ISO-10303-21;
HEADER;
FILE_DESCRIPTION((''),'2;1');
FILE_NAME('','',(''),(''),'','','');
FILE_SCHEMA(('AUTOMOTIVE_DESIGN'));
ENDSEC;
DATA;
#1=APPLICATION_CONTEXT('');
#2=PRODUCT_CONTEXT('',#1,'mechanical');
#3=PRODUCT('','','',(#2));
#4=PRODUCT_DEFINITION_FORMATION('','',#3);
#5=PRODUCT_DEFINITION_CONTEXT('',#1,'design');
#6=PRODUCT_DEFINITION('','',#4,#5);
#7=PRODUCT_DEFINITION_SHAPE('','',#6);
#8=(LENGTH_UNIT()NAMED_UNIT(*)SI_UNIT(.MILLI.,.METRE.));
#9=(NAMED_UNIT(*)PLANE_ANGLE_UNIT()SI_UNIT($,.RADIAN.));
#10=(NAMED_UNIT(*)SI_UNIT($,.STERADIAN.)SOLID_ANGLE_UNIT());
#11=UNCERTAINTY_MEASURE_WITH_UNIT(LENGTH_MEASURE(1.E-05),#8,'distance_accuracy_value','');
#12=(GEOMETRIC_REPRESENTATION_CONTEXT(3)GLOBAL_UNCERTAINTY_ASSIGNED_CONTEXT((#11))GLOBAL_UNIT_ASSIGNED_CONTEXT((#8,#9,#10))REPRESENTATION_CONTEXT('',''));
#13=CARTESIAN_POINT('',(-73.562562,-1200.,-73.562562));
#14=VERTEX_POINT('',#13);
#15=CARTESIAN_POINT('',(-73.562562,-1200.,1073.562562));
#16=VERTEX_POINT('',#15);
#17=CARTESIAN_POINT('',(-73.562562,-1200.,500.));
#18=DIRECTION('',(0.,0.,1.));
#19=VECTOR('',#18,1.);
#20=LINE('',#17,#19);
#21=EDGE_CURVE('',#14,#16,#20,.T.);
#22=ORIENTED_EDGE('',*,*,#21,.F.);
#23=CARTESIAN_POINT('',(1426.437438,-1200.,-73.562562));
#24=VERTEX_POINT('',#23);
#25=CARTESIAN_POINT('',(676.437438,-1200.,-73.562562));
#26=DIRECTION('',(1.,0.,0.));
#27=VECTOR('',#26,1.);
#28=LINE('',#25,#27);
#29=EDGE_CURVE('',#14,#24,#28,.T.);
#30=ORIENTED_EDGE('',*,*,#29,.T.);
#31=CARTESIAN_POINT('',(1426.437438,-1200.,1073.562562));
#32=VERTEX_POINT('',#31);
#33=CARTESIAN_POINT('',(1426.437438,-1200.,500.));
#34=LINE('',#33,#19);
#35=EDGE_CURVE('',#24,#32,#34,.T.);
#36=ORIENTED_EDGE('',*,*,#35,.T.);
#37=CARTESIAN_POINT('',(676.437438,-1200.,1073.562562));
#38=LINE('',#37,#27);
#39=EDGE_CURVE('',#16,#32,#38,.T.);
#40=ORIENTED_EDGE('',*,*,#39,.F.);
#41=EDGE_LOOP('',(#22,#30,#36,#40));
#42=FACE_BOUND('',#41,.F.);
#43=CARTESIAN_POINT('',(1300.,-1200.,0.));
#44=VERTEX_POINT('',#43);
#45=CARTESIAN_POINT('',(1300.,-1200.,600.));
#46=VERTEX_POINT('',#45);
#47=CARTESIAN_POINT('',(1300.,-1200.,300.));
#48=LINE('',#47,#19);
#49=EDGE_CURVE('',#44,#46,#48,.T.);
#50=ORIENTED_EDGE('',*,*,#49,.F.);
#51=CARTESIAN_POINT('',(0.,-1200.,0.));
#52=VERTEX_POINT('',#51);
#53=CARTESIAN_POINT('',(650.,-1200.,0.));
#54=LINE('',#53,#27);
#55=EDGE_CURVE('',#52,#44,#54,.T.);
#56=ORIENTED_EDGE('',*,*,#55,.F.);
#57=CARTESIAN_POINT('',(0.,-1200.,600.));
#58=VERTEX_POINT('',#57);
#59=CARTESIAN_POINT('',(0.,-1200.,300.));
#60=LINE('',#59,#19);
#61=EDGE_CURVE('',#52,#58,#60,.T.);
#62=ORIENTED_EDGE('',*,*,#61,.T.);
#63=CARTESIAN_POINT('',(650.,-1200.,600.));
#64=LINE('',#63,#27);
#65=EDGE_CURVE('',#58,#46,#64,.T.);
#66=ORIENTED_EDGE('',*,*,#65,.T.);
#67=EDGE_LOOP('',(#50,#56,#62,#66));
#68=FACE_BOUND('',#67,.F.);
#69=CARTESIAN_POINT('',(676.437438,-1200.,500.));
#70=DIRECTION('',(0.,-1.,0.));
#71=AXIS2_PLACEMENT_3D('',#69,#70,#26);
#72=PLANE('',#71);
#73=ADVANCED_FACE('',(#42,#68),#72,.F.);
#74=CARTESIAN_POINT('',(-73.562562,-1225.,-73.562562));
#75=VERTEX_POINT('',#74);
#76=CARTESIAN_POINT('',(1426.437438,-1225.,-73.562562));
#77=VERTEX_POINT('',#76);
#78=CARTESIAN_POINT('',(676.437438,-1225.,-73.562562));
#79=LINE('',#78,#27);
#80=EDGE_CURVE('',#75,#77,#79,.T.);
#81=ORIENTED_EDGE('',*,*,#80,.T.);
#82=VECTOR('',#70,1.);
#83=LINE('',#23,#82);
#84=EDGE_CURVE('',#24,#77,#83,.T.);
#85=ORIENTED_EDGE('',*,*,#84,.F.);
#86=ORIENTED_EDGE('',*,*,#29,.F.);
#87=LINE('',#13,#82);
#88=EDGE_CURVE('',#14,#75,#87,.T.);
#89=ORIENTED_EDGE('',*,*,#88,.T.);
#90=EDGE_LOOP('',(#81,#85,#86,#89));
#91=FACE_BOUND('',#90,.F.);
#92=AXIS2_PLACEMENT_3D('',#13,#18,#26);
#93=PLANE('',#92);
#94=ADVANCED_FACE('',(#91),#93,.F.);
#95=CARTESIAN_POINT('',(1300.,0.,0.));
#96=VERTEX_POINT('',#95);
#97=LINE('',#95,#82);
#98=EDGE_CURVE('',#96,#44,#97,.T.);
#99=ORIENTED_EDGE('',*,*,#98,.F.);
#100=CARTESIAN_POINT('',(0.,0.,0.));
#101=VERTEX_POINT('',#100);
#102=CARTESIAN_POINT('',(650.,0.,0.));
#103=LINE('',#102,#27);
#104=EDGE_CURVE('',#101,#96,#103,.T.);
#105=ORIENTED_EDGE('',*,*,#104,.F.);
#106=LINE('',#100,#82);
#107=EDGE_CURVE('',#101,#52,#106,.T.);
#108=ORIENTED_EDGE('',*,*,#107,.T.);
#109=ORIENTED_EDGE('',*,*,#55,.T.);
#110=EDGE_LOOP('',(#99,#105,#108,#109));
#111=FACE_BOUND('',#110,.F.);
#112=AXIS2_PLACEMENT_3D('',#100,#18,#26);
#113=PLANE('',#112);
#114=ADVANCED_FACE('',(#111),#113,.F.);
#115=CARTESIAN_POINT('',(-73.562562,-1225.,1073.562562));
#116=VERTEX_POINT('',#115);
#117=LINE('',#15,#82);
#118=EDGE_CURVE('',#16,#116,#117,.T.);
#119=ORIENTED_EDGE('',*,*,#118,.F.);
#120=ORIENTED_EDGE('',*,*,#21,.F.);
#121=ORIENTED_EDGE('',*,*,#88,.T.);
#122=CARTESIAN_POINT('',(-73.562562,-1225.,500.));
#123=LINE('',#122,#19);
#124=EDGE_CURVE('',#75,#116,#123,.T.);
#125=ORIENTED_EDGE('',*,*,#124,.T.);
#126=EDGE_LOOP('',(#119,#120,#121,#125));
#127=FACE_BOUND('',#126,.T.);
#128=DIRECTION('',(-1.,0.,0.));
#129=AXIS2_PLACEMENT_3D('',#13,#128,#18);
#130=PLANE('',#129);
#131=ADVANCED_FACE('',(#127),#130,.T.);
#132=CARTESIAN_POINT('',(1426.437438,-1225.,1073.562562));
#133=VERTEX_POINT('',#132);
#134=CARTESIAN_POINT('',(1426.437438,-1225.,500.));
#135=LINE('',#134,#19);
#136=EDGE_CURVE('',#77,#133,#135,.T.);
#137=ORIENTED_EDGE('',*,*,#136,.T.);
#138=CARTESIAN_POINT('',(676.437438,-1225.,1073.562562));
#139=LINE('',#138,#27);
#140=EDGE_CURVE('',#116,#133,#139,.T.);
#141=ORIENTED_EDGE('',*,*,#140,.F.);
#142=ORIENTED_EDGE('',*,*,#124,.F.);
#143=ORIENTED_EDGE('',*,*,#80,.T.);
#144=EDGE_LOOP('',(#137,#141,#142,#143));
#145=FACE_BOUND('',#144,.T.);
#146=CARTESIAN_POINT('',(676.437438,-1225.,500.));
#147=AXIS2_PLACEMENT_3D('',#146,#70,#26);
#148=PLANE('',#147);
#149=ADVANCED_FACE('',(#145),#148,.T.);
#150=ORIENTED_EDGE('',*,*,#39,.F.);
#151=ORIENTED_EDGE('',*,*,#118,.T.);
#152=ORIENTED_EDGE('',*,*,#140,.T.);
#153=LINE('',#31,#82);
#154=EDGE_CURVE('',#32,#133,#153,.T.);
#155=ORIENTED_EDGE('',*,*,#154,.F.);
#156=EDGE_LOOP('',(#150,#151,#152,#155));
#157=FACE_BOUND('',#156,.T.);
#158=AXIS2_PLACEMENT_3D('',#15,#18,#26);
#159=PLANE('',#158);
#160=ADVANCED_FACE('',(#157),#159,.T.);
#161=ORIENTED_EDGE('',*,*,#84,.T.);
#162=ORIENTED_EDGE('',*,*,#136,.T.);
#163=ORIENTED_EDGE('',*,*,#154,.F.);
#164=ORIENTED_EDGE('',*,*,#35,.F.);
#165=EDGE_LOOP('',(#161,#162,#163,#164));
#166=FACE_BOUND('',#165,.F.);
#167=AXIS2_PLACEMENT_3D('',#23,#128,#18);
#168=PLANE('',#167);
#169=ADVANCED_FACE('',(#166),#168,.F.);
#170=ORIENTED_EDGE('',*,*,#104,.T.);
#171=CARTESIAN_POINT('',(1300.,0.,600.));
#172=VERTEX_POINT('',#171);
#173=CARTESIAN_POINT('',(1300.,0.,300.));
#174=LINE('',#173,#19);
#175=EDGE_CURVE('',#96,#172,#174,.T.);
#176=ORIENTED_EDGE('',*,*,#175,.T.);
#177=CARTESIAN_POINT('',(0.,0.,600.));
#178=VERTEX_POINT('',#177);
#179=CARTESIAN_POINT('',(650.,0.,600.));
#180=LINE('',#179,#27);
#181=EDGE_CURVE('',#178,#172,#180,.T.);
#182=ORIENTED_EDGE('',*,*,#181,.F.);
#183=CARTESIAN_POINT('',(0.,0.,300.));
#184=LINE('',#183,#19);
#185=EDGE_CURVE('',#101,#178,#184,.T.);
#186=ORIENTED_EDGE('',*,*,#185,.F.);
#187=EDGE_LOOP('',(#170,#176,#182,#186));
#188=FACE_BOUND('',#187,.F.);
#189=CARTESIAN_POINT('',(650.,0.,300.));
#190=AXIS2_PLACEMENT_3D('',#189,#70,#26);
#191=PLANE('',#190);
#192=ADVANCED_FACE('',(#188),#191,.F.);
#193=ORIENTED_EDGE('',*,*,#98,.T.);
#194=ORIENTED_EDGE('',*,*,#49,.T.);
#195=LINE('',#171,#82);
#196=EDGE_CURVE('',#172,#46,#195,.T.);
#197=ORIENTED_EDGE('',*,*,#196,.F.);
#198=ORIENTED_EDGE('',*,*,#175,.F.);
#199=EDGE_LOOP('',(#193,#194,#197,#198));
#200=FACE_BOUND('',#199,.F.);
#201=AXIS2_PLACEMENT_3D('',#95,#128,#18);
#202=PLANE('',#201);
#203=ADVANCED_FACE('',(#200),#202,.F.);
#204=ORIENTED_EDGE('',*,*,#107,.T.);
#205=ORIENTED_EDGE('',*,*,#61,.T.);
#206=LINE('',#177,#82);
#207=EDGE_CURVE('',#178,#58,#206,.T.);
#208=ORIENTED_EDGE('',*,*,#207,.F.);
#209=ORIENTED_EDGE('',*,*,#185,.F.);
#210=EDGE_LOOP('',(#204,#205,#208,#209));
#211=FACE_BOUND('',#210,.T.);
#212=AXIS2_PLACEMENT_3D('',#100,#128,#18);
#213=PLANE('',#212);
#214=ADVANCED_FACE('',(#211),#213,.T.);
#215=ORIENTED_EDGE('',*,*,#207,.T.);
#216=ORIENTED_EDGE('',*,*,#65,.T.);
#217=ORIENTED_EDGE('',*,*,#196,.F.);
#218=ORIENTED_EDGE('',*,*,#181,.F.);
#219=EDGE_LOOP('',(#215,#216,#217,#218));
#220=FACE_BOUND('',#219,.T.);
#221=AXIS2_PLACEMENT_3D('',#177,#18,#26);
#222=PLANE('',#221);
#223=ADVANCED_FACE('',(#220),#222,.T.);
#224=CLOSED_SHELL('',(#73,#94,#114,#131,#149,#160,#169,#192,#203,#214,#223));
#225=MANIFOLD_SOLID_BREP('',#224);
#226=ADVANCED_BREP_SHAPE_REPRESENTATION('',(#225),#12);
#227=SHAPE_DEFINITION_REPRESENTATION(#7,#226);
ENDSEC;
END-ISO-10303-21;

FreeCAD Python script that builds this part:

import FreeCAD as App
import Part
import Sketcher
from FreeCAD import Vector
Q = App.Units.Quantity


def add_polygon(sketch, points):
    """Adds a closed chain of lines whose ends are joined by coincident constraints."""
    first, n = sketch.GeometryCount, len(points)
    for a, b in zip(points, points[1:] + points[:1]):
        sketch.addGeometry(Part.LineSegment(App.Vector(*a, 0), App.Vector(*b, 0)), False)
    for i in range(n):
        sketch.addConstraint(Sketcher.Constraint("Coincident", first + i, 2, first + (i + 1) % n, 1))

doc = App.newDocument("Part")
body = doc.addObject("PartDesign::Body", "Body")

sketch1 = body.newObject("Sketcher::SketchObject", "Sketch")
sketch1.AttachmentSupport = (doc.getObject("XZ_Plane"), [""])
sketch1.MapMode = "FlatFace"
add_polygon(sketch1, [(0, 600), (0, 0), (1300, 0), (1300, 600)])
sketch1.addConstraint([
    Sketcher.Constraint("Vertical", 0),
    Sketcher.Constraint("Horizontal", 1),
    Sketcher.Constraint("Vertical", 2),
    Sketcher.Constraint("Horizontal", 3),
    Sketcher.Constraint("Coincident", 0, 2, -1, 1),
    Sketcher.Constraint("DistanceX", 1, 1, 1, 2, Q("1300 mm")),
    Sketcher.Constraint("DistanceY", 0, 2, 0, 1, Q("600 mm")),
])
pad1 = body.newObject("PartDesign::Pad", "Pad")
pad1.Profile = sketch1
pad1.Length = 1200

sketch2 = body.newObject("Sketcher::SketchObject", "Sketch001")
sketch2.AttachmentSupport = (doc.getObject("XZ_Plane"), [""])
sketch2.MapMode = "FlatFace"
sketch2.AttachmentOffset = App.Placement(Vector(0, 0, 1200), App.Rotation())
add_polygon(sketch2, [(-74, 1074), (-74, -74), (1426, -74), (1426, 1074)])
sketch2.addConstraint([
    Sketcher.Constraint("Vertical", 0),
    Sketcher.Constraint("Horizontal", 1),
    Sketcher.Constraint("Vertical", 2),
    Sketcher.Constraint("Horizontal", 3),
    Sketcher.Constraint("DistanceX", 1, 1, 1, 2, Q("1500 mm")),
    Sketcher.Constraint("DistanceY", 0, 2, 0, 1, Q("1147.125125 mm")),
    Sketcher.Constraint("DistanceX", 0, 2, -1, 1, Q("73.562562 mm")),
    Sketcher.Constraint("DistanceY", 0, 2, -1, 1, Q("73.562562 mm")),
])
pad2 = body.newObject("PartDesign::Pad", "Pad001")
pad2.Profile = sketch2
pad2.Length = 25

doc.recompute()
